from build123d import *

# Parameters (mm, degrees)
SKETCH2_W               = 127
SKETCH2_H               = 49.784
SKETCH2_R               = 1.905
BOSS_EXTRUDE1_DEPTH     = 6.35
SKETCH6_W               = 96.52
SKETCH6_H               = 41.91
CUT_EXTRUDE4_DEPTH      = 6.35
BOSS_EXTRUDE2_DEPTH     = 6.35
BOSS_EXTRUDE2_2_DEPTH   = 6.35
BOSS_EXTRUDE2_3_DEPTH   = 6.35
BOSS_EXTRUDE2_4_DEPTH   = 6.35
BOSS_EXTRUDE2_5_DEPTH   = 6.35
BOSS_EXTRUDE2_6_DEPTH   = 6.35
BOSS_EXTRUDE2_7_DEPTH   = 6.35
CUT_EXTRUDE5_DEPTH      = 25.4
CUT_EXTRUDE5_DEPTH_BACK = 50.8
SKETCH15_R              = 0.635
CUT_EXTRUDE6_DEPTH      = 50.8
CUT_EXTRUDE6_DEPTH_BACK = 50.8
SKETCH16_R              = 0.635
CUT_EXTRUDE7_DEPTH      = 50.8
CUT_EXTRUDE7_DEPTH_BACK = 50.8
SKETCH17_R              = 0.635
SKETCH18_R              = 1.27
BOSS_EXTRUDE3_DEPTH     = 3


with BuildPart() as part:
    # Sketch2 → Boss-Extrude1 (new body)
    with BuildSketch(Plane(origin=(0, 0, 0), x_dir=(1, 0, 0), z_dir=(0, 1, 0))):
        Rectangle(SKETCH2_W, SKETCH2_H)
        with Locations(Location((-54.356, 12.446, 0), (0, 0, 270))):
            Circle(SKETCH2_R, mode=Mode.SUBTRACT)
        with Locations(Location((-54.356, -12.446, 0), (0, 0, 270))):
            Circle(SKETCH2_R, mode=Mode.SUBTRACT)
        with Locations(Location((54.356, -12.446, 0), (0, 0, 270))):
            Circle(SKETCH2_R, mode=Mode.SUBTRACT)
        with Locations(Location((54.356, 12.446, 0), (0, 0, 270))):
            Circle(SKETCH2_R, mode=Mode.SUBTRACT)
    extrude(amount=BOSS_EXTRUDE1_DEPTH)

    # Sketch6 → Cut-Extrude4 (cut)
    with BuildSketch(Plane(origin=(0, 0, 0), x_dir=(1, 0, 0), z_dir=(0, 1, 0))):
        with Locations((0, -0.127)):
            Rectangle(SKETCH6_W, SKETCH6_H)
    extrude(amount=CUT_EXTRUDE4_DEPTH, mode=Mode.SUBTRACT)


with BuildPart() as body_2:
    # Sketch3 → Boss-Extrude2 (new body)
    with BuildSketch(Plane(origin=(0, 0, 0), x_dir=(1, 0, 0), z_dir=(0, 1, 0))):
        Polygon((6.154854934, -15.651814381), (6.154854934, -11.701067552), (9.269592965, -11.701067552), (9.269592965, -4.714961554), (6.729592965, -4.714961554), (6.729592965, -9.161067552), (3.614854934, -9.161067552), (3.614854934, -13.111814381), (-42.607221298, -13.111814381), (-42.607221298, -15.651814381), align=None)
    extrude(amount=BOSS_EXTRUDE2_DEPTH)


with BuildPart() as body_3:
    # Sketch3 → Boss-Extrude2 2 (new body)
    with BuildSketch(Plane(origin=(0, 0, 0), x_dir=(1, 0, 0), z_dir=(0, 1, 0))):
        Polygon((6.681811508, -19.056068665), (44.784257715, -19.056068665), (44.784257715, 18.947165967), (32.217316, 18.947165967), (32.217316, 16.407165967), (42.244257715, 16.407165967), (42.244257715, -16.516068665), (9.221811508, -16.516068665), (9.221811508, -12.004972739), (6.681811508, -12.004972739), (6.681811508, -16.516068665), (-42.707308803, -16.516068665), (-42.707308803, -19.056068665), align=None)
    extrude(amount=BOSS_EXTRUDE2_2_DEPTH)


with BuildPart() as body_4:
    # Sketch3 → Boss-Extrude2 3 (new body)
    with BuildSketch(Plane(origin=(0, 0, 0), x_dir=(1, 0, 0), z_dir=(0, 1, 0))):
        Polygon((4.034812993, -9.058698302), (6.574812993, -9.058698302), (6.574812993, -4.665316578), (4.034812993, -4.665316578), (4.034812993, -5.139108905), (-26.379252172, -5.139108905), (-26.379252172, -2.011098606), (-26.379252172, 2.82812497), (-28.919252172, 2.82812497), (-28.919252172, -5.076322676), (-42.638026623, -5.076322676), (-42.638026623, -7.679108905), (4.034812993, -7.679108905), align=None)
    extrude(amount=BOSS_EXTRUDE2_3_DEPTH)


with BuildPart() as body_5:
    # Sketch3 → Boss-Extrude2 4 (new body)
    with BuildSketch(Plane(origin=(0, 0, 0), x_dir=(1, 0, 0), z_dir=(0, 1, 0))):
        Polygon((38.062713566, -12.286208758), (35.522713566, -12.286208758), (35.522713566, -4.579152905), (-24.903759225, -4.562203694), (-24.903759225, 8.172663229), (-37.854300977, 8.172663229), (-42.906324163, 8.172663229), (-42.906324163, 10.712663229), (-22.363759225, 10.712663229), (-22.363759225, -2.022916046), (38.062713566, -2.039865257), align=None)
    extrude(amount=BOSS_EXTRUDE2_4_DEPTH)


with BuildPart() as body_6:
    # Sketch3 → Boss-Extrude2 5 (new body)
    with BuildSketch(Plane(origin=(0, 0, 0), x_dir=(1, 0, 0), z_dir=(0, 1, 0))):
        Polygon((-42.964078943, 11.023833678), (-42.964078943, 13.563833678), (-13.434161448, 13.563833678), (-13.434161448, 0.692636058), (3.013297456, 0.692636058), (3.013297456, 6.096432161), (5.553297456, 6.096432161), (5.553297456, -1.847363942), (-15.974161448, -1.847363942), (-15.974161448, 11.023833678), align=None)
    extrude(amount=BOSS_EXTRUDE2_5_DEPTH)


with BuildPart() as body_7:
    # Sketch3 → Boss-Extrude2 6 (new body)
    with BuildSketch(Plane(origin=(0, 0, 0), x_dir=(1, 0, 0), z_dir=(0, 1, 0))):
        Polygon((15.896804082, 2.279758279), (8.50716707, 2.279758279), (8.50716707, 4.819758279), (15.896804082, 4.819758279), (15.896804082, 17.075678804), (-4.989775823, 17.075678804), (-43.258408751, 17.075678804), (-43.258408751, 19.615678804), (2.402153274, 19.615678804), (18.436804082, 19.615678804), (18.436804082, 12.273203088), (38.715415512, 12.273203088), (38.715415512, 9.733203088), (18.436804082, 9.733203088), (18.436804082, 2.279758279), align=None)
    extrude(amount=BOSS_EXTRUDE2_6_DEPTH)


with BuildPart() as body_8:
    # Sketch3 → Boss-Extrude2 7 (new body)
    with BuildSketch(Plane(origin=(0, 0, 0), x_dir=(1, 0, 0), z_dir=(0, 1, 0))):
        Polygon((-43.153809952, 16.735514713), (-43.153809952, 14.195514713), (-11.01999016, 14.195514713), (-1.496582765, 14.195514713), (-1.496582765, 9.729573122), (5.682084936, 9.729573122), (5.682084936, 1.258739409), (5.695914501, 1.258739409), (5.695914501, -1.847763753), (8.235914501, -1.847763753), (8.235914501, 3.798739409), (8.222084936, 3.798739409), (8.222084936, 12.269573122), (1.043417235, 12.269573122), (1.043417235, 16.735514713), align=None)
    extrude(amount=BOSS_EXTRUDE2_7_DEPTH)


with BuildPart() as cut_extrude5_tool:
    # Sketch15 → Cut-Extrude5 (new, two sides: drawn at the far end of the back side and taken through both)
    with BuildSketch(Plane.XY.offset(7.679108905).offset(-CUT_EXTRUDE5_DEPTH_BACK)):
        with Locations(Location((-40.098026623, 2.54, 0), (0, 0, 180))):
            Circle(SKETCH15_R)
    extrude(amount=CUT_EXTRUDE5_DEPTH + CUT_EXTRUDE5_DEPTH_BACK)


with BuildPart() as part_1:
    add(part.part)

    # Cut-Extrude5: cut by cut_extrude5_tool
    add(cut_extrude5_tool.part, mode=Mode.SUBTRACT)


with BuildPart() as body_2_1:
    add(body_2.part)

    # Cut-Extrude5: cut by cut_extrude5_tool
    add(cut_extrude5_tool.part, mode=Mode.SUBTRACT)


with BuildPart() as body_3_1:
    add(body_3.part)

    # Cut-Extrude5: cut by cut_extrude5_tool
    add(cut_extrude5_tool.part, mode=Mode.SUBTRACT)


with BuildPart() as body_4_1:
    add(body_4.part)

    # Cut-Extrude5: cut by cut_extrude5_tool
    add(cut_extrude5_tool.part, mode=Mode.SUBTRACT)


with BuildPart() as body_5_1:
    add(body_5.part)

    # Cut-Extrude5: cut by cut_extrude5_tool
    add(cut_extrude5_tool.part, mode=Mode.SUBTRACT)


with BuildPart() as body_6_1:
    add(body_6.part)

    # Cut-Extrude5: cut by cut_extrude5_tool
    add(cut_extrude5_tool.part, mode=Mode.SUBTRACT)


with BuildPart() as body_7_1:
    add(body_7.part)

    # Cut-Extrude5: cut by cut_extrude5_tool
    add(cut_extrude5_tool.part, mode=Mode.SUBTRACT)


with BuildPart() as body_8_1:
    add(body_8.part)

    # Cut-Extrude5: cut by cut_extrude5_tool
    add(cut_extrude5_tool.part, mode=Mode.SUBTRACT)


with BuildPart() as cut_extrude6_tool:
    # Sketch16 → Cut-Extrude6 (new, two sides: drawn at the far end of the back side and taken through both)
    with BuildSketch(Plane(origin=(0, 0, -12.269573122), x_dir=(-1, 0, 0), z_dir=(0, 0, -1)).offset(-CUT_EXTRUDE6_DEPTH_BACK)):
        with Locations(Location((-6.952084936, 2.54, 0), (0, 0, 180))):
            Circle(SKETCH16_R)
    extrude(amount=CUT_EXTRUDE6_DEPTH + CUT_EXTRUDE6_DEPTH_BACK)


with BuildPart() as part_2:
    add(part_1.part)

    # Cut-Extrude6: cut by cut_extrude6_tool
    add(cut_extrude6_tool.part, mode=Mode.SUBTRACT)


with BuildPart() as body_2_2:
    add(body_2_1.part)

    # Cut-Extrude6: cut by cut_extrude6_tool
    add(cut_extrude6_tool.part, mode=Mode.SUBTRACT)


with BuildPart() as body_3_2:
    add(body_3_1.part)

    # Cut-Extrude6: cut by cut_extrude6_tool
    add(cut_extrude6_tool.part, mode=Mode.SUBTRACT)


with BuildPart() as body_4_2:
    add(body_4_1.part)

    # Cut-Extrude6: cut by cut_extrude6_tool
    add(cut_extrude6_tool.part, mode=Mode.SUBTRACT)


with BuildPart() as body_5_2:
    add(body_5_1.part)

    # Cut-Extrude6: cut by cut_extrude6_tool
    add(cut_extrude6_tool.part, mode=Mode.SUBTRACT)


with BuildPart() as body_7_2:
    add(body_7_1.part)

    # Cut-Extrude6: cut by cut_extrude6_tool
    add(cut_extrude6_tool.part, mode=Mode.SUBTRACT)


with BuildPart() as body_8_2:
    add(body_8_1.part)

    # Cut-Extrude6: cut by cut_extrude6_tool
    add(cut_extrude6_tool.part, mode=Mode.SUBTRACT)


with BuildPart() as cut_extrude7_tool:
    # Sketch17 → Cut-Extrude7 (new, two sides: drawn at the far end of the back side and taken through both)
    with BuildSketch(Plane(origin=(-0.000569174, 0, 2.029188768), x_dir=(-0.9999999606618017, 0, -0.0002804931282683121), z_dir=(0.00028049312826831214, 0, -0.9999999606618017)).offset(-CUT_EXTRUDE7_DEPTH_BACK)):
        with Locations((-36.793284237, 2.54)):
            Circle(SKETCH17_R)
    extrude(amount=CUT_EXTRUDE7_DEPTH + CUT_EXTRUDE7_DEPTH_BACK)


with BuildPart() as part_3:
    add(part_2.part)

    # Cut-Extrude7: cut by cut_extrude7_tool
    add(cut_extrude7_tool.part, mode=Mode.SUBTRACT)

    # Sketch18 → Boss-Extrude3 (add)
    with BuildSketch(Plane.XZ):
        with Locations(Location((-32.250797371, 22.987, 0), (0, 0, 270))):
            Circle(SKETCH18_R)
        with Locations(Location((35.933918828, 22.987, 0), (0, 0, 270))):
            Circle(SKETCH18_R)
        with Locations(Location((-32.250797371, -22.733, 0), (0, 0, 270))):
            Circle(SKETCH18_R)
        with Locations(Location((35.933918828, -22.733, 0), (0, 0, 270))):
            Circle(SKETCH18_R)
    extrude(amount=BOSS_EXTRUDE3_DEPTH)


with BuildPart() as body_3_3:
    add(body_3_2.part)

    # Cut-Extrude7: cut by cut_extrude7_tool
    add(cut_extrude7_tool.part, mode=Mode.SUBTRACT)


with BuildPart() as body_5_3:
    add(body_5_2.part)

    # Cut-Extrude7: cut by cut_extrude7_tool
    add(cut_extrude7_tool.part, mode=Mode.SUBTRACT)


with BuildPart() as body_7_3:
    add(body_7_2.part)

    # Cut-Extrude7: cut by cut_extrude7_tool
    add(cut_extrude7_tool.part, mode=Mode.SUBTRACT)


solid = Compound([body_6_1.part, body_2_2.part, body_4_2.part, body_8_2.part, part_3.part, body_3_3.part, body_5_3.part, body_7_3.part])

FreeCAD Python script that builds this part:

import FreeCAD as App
import Part
import Sketcher
Q = App.Units.Quantity

doc = App.newDocument("Part")
params = doc.addObject("Spreadsheet::Sheet", "Params")
for row, (alias, value) in enumerate([
    ("sketch1_diameter", "0.15 in"),
    ("sketch1_width", "5 in"),
    ("sketch1_height", "1.96 in"),
    ("pad1_length", "0.25 in"),
    ("sketch2_width", "3.8 in"),
    ("sketch2_height", "1.65 in"),
    ("pocket1_length", "0.25 in"),
    ("sketch3_width", "0.1 in"),
    ("pad2_length", "0.25 in"),
    ("sketch4_width", "0.1 in"),
    ("pad3_length", "0.25 in"),
    ("sketch5_width", "0.1 in"),
    ("pad4_length", "0.25 in"),
    ("sketch6_width", "0.1 in"),
    ("pad5_length", "0.25 in"),
    ("sketch7_width", "0.1 in"),
    ("pad6_length", "0.25 in"),
    ("sketch8_height", "0.1 in"),
    ("pad7_length", "0.25 in"),
    ("sketch9_width", "0.1 in"),
    ("pad8_length", "0.25 in"),
    ("sketch10_diameter", "0.05 in"),
    ("pad9_length", "1 in"),
    ("pad9_length2", "2 in"),
    ("sketch11_diameter", "0.05 in"),
    ("pad10_length", "2 in"),
    ("pad10_length2", "2 in"),
    ("sketch12_diameter", "0.05 in"),
    ("pad11_length", "2 in"),
    ("pad11_length2", "2 in"),
    ("sketch13_diameter", "0.1 in"),
    ("pad12_length", "3 mm"),
], start=1):
    params.set(f"A{row}", alias)
    params.set(f"B{row}", "=" + value)
    params.setAlias(f"B{row}", alias)

body = doc.addObject("PartDesign::Body", "Body")

sketch1 = body.newObject("Sketcher::SketchObject", "Sketch")
sketch1.AttachmentSupport = (doc.getObject("XZ_Plane"), [""])
sketch1.MapMode = "FlatFace"
sketch1.addGeometry([
    Part.LineSegment(App.Vector(-63.5, -24.9, 0), App.Vector(-63.5, 24.9, 0)),
    Part.LineSegment(App.Vector(-63.5, 24.9, 0), App.Vector(63.5, 24.9, 0)),
    Part.LineSegment(App.Vector(63.5, 24.9, 0), App.Vector(63.5, -24.9, 0)),
    Part.LineSegment(App.Vector(63.5, -24.9, 0), App.Vector(-63.5, -24.9, 0)),
    Part.Circle(App.Vector(-54.4, 12.4, 0), App.Vector(0, 0, 1), 1.9),
    Part.Circle(App.Vector(54.4, 12.4, 0), App.Vector(0, 0, 1), 1.9),
    Part.Circle(App.Vector(-54.4, -12.4, 0), App.Vector(0, 0, 1), 1.9),
    Part.Circle(App.Vector(54.4, -12.4, 0), App.Vector(0, 0, 1), 1.9),
], False)
sketch1.addConstraint([
    Sketcher.Constraint("Coincident", 0, 2, 1, 1),
    Sketcher.Constraint("Coincident", 1, 2, 2, 1),
    Sketcher.Constraint("Coincident", 2, 2, 3, 1),
    Sketcher.Constraint("Coincident", 3, 2, 0, 1),
    Sketcher.Constraint("Vertical", 0),
    Sketcher.Constraint("Horizontal", 1),
    Sketcher.Constraint("Vertical", 2),
    Sketcher.Constraint("Horizontal", 3),
    Sketcher.Constraint("Equal", 4, 5),
    Sketcher.Constraint("Equal", 5, 6),
    Sketcher.Constraint("Equal", 6, 7),
    Sketcher.Constraint("Symmetric", 5, 3, 6, 3, -1, 1),
    Sketcher.Constraint("Symmetric", 4, 3, 7, 3, -1, 1),
    Sketcher.Constraint("Symmetric", 0, 2, 2, 2, -1, 1),
    Sketcher.Constraint("Symmetric", 4, 3, 5, 3, -2),
    Sketcher.Constraint("Diameter", 4, Q("0.15 in")),
    Sketcher.Constraint("DistanceX", 1, 1, 1, 2, Q("5 in")),
    Sketcher.Constraint("DistanceY", 0, 1, 0, 2, Q("1.96 in")),
    Sketcher.Constraint("DistanceX", 4, 3, -1, 1, Q("2.14 in")),
    Sketcher.Constraint("DistanceY", -1, 1, 4, 3, Q("0.49 in")),
])
sketch1.setExpression("Constraints[15]", "Params.sketch1_diameter")
sketch1.setExpression("Constraints[16]", "Params.sketch1_width")
sketch1.setExpression("Constraints[17]", "Params.sketch1_height")
pad1 = body.newObject("PartDesign::Pad", "Pad")
pad1.Profile = sketch1
pad1.setExpression("Length", "Params.pad1_length")
pad1.Reversed = True

sketch2 = body.newObject("Sketcher::SketchObject", "Sketch001")
sketch2.AttachmentSupport = (doc.getObject("XZ_Plane"), [""])
sketch2.MapMode = "FlatFace"
sketch2.addGeometry([
    Part.LineSegment(App.Vector(-48, -21, 0), App.Vector(-48, 21, 0)),
    Part.LineSegment(App.Vector(-48, 21, 0), App.Vector(48, 21, 0)),
    Part.LineSegment(App.Vector(48, 21, 0), App.Vector(48, -21, 0)),
    Part.LineSegment(App.Vector(48, -21, 0), App.Vector(-48, -21, 0)),
], False)
sketch2.addConstraint([
    Sketcher.Constraint("Coincident", 0, 2, 1, 1),
    Sketcher.Constraint("Coincident", 1, 2, 2, 1),
    Sketcher.Constraint("Coincident", 2, 2, 3, 1),
    Sketcher.Constraint("Coincident", 3, 2, 0, 1),
    Sketcher.Constraint("Vertical", 0),
    Sketcher.Constraint("Horizontal", 1),
    Sketcher.Constraint("Vertical", 2),
    Sketcher.Constraint("Horizontal", 3),
    Sketcher.Constraint("DistanceX", 1, 1, 1, 2, Q("3.8 in")),
    Sketcher.Constraint("DistanceY", 0, 1, 0, 2, Q("1.65 in")),
    Sketcher.Constraint("DistanceX", 0, 2, -1, 1, Q("1.9 in")),
    Sketcher.Constraint("DistanceY", -1, 1, 0, 2, Q("0.83 in")),
])
sketch2.setExpression("Constraints[8]", "Params.sketch2_width")
sketch2.setExpression("Constraints[9]", "Params.sketch2_height")
pocket1 = body.newObject("PartDesign::Pocket", "Pocket")
pocket1.Profile = sketch2
pocket1.setExpression("Length", "Params.pocket1_length")
body2 = doc.addObject("PartDesign::Body", "Body001")

sketch3 = body2.newObject("Sketcher::SketchObject", "Sketch002")
sketch3.AttachmentSupport = (doc.getObject("XZ_Plane001"), [""])
sketch3.MapMode = "FlatFace"
sketch3.addGeometry([
    Part.LineSegment(App.Vector(6.2, 15.7, 0), App.Vector(6.2, 11.7, 0)),
    Part.LineSegment(App.Vector(6.2, 11.7, 0), App.Vector(9.3, 11.7, 0)),
    Part.LineSegment(App.Vector(9.3, 11.7, 0), App.Vector(9.3, 4.7, 0)),
    Part.LineSegment(App.Vector(9.3, 4.7, 0), App.Vector(6.7, 4.7, 0)),
    Part.LineSegment(App.Vector(6.7, 4.7, 0), App.Vector(6.7, 9.2, 0)),
    Part.LineSegment(App.Vector(6.7, 9.2, 0), App.Vector(3.6, 9.2, 0)),
    Part.LineSegment(App.Vector(3.6, 9.2, 0), App.Vector(3.6, 13.1, 0)),
    Part.LineSegment(App.Vector(3.6, 13.1, 0), App.Vector(-42.6, 13.1, 0)),
    Part.LineSegment(App.Vector(-42.6, 13.1, 0), App.Vector(-42.6, 15.7, 0)),
    Part.LineSegment(App.Vector(-42.6, 15.7, 0), App.Vector(6.2, 15.7, 0)),
], False)
sketch3.addConstraint([
    Sketcher.Constraint("Coincident", 0, 2, 1, 1),
    Sketcher.Constraint("Coincident", 1, 2, 2, 1),
    Sketcher.Constraint("Coincident", 2, 2, 3, 1),
    Sketcher.Constraint("Coincident", 3, 2, 4, 1),
    Sketcher.Constraint("Coincident", 4, 2, 5, 1),
    Sketcher.Constraint("Coincident", 5, 2, 6, 1),
    Sketcher.Constraint("Coincident", 6, 2, 7, 1),
    Sketcher.Constraint("Coincident", 7, 2, 8, 1),
    Sketcher.Constraint("Coincident", 8, 2, 9, 1),
    Sketcher.Constraint("Coincident", 9, 2, 0, 1),
    Sketcher.Constraint("Vertical", 0),
    Sketcher.Constraint("Horizontal", 1),
    Sketcher.Constraint("Vertical", 2),
    Sketcher.Constraint("Horizontal", 3),
    Sketcher.Constraint("Vertical", 4),
    Sketcher.Constraint("Horizontal", 5),
    Sketcher.Constraint("Vertical", 6),
    Sketcher.Constraint("Horizontal", 7),
    Sketcher.Constraint("Vertical", 8),
    Sketcher.Constraint("Horizontal", 9),
    Sketcher.Constraint("Equal", 1, 5),
    Sketcher.Constraint("Equal", 0, 6),
    Sketcher.Constraint("Equal", 3, 8),
    Sketcher.Constraint("DistanceX", 3, 2, 3, 1, Q("0.1 in")),
    Sketcher.Constraint("DistanceX", 1, 1, 1, 2, 3.114738),
    Sketcher.Constraint("DistanceX", 7, 2, 7, 1, 46.222076),
    Sketcher.Constraint("DistanceY", 0, 2, 0, 1, 3.950747),
    Sketcher.Constraint("DistanceY", 2, 2, 2, 1, 6.986106),
    Sketcher.Constraint("DistanceY", -1, 1, 2, 2, 4.714962),
    Sketcher.Constraint("DistanceX", 7, 2, -1, 1, 42.607221),
])
sketch3.setExpression("Constraints[23]", "Params.sketch3_width")
pad2 = body2.newObject("PartDesign::Pad", "Pad001")
pad2.Profile = sketch3
pad2.setExpression("Length", "Params.pad2_length")
pad2.Reversed = True
body3 = doc.addObject("PartDesign::Body", "Body002")

sketch4 = body3.newObject("Sketcher::SketchObject", "Sketch003")
sketch4.AttachmentSupport = (doc.getObject("XZ_Plane002"), [""])
sketch4.MapMode = "FlatFace"
sketch4.addGeometry([
    Part.LineSegment(App.Vector(44.8, 19.1, 0), App.Vector(44.8, -18.9, 0)),
    Part.LineSegment(App.Vector(44.8, -18.9, 0), App.Vector(32.2, -18.9, 0)),
    Part.LineSegment(App.Vector(32.2, -18.9, 0), App.Vector(32.2, -16.4, 0)),
    Part.LineSegment(App.Vector(32.2, -16.4, 0), App.Vector(42.2, -16.4, 0)),
    Part.LineSegment(App.Vector(42.2, -16.4, 0), App.Vector(42.2, 16.5, 0)),
    Part.LineSegment(App.Vector(42.2, 16.5, 0), App.Vector(9.2, 16.5, 0)),
    Part.LineSegment(App.Vector(9.2, 16.5, 0), App.Vector(9.2, 12, 0)),
    Part.LineSegment(App.Vector(9.2, 12, 0), App.Vector(6.7, 12, 0)),
    Part.LineSegment(App.Vector(6.7, 12, 0), App.Vector(6.7, 16.5, 0)),
    Part.LineSegment(App.Vector(6.7, 16.5, 0), App.Vector(-42.7, 16.5, 0)),
    Part.LineSegment(App.Vector(-42.7, 16.5, 0), App.Vector(-42.7, 19.1, 0)),
    Part.LineSegment(App.Vector(-42.7, 19.1, 0), App.Vector(44.8, 19.1, 0)),
], False)
sketch4.addConstraint([
    Sketcher.Constraint("Coincident", 0, 2, 1, 1),
    Sketcher.Constraint("Coincident", 1, 2, 2, 1),
    Sketcher.Constraint("Coincident", 2, 2, 3, 1),
    Sketcher.Constraint("Coincident", 3, 2, 4, 1),
    Sketcher.Constraint("Coincident", 4, 2, 5, 1),
    Sketcher.Constraint("Coincident", 5, 2, 6, 1),
    Sketcher.Constraint("Coincident", 6, 2, 7, 1),
    Sketcher.Constraint("Coincident", 7, 2, 8, 1),
    Sketcher.Constraint("Coincident", 8, 2, 9, 1),
    Sketcher.Constraint("Coincident", 9, 2, 10, 1),
    Sketcher.Constraint("Coincident", 10, 2, 11, 1),
    Sketcher.Constraint("Coincident", 11, 2, 0, 1),
    Sketcher.Constraint("Vertical", 0),
    Sketcher.Constraint("Horizontal", 1),
    Sketcher.Constraint("Vertical", 2),
    Sketcher.Constraint("Horizontal", 3),
    Sketcher.Constraint("Vertical", 4),
    Sketcher.Constraint("Horizontal", 5),
    Sketcher.Constraint("Vertical", 6),
    Sketcher.Constraint("Horizontal", 7),
    Sketcher.Constraint("Vertical", 8),
    Sketcher.Constraint("Horizontal", 9),
    Sketcher.Constraint("Vertical", 10),
    Sketcher.Constraint("Horizontal", 11),
    Sketcher.Constraint("Horizontal", 5, 2, 8, 2),
    Sketcher.Constraint("Equal", 7, 2),
    Sketcher.Constraint("Equal", 2, 10),
    Sketcher.Constraint("DistanceX", 7, 2, 7, 1, Q("0.1 in")),
    Sketcher.Constraint("DistanceX", 3, 2, 0, 2, Q("0.1 in")),
    Sketcher.Constraint("DistanceX", 1, 2, 1, 1, 12.566942),
    Sketcher.Constraint("DistanceX", 9, 2, 9, 1, 49.38912),
    Sketcher.Constraint("DistanceX", 5, 2, 5, 1, 33.022446),
    Sketcher.Constraint("DistanceY", 0, 2, 0, 1, 38.003235),
    Sketcher.Constraint("DistanceY", 6, 2, 6, 1, 4.511096),
    Sketcher.Constraint("DistanceY", -1, 1, 4, 2, 16.516069),
    Sketcher.Constraint("DistanceX", -1, 1, 5, 2, 9.221812),
])
sketch4.setExpression("Constraints[27]", "Params.sketch4_width")
pad3 = body3.newObject("PartDesign::Pad", "Pad002")
pad3.Profile = sketch4
pad3.setExpression("Length", "Params.pad3_length")
pad3.Reversed = True
body4 = doc.addObject("PartDesign::Body", "Body003")

sketch5 = body4.newObject("Sketcher::SketchObject", "Sketch004")
sketch5.AttachmentSupport = (doc.getObject("XZ_Plane003"), [""])
sketch5.MapMode = "FlatFace"
sketch5.addGeometry([
    Part.LineSegment(App.Vector(4.03, 9.06, 0), App.Vector(6.57, 9.06, 0)),
    Part.LineSegment(App.Vector(6.57, 9.06, 0), App.Vector(6.57, 4.67, 0)),
    Part.LineSegment(App.Vector(6.57, 4.67, 0), App.Vector(4.03, 4.67, 0)),
    Part.LineSegment(App.Vector(4.03, 4.67, 0), App.Vector(4.03, 5.14, 0)),
    Part.LineSegment(App.Vector(4.03, 5.14, 0), App.Vector(-26.38, 5.14, 0)),
    Part.LineSegment(App.Vector(-26.38, 5.14, 0), App.Vector(-26.38, -2.83, 0)),
    Part.LineSegment(App.Vector(-26.38, -2.83, 0), App.Vector(-28.92, -2.83, 0)),
    Part.LineSegment(App.Vector(-28.92, -2.83, 0), App.Vector(-28.92, 5.08, 0)),
    Part.LineSegment(App.Vector(-28.92, 5.08, 0), App.Vector(-42.64, 5.08, 0)),
    Part.LineSegment(App.Vector(-42.64, 5.08, 0), App.Vector(-42.64, 7.68, 0)),
    Part.LineSegment(App.Vector(-42.64, 7.68, 0), App.Vector(4.03, 7.68, 0)),
    Part.LineSegment(App.Vector(4.03, 7.68, 0), App.Vector(4.03, 9.06, 0)),
], False)
sketch5.addConstraint([
    Sketcher.Constraint("Coincident", 0, 2, 1, 1),
    Sketcher.Constraint("Coincident", 1, 2, 2, 1),
    Sketcher.Constraint("Coincident", 2, 2, 3, 1),
    Sketcher.Constraint("Coincident", 3, 2, 4, 1),
    Sketcher.Constraint("Coincident", 4, 2, 5, 1),
    Sketcher.Constraint("Coincident", 5, 2, 6, 1),
    Sketcher.Constraint("Coincident", 6, 2, 7, 1),
    Sketcher.Constraint("Coincident", 7, 2, 8, 1),
    Sketcher.Constraint("Coincident", 8, 2, 9, 1),
    Sketcher.Constraint("Coincident", 9, 2, 10, 1),
    Sketcher.Constraint("Coincident", 10, 2, 11, 1),
    Sketcher.Constraint("Coincident", 11, 2, 0, 1),
    Sketcher.Constraint("Horizontal", 0),
    Sketcher.Constraint("Vertical", 1),
    Sketcher.Constraint("Horizontal", 2),
    Sketcher.Constraint("Vertical", 3),
    Sketcher.Constraint("Horizontal", 4),
    Sketcher.Constraint("Vertical", 5),
    Sketcher.Constraint("Horizontal", 6),
    Sketcher.Constraint("Vertical", 7),
    Sketcher.Constraint("Horizontal", 8),
    Sketcher.Constraint("Vertical", 9),
    Sketcher.Constraint("Horizontal", 10),
    Sketcher.Constraint("Vertical", 11),
    Sketcher.Constraint("Vertical", 3, 2, 10, 2),
    Sketcher.Constraint("Equal", 2, 6),
    Sketcher.Constraint("DistanceX", 0, 1, 0, 2, Q("0.1 in")),
    Sketcher.Constraint("DistanceY", 4, 2, 9, 2, Q("0.1 in")),
    Sketcher.Constraint("DistanceX", 10, 1, 10, 2, 46.67284),
    Sketcher.Constraint("DistanceY", 1, 2, 1, 1, 4.393382),
    Sketcher.Constraint("DistanceY", 11, 1, 11, 2, 1.379589),
    Sketcher.Constraint("DistanceY", -1, 1, 0, 2, 9.058698),
    Sketcher.Constraint("DistanceX", 4, 2, 4, 1, 30.414065),
    Sketcher.Constraint("DistanceY", 5, 2, 5, 1, 7.967234),
    Sketcher.Constraint("DistanceY", 7, 1, 7, 2, 7.904448),
    Sketcher.Constraint("DistanceX", -1, 1, 0, 2, 6.574813),
])
sketch5.setExpression("Constraints[26]", "Params.sketch5_width")
pad4 = body4.newObject("PartDesign::Pad", "Pad003")
pad4.Profile = sketch5
pad4.setExpression("Length", "Params.pad4_length")
pad4.Reversed = True
body5 = doc.addObject("PartDesign::Body", "Body004")

sketch6 = body5.newObject("Sketcher::SketchObject", "Sketch005")
sketch6.AttachmentSupport = (doc.getObject("XZ_Plane004"), [""])
sketch6.MapMode = "FlatFace"
sketch6.addGeometry([
    Part.LineSegment(App.Vector(35.5, 12.3, 0), App.Vector(38.1, 12.3, 0)),
    Part.LineSegment(App.Vector(38.1, 12.3, 0), App.Vector(38.1, 2, 0)),
    Part.LineSegment(App.Vector(38.1, 2, 0), App.Vector(-22.4, 2, 0)),
    Part.LineSegment(App.Vector(-22.4, 2, 0), App.Vector(-22.4, -10.7, 0)),
    Part.LineSegment(App.Vector(-22.4, -10.7, 0), App.Vector(-42.9, -10.7, 0)),
    Part.LineSegment(App.Vector(-42.9, -10.7, 0), App.Vector(-42.9, -8.2, 0)),
    Part.LineSegment(App.Vector(-42.9, -8.2, 0), App.Vector(-24.9, -8.2, 0)),
    Part.LineSegment(App.Vector(-24.9, -8.2, 0), App.Vector(-24.9, 4.6, 0)),
    Part.LineSegment(App.Vector(-24.9, 4.6, 0), App.Vector(35.5, 4.6, 0)),
    Part.LineSegment(App.Vector(35.5, 4.6, 0), App.Vector(35.5, 12.3, 0)),
], False)
sketch6.addConstraint([
    Sketcher.Constraint("Coincident", 0, 2, 1, 1),
    Sketcher.Constraint("Coincident", 1, 2, 2, 1),
    Sketcher.Constraint("Coincident", 2, 2, 3, 1),
    Sketcher.Constraint("Coincident", 3, 2, 4, 1),
    Sketcher.Constraint("Coincident", 4, 2, 5, 1),
    Sketcher.Constraint("Coincident", 5, 2, 6, 1),
    Sketcher.Constraint("Coincident", 6, 2, 7, 1),
    Sketcher.Constraint("Coincident", 7, 2, 8, 1),
    Sketcher.Constraint("Coincident", 8, 2, 9, 1),
    Sketcher.Constraint("Coincident", 9, 2, 0, 1),
    Sketcher.Constraint("Horizontal", 0),
    Sketcher.Constraint("Vertical", 1),
    Sketcher.Constraint("Vertical", 3),
    Sketcher.Constraint("Horizontal", 4),
    Sketcher.Constraint("Vertical", 5),
    Sketcher.Constraint("Horizontal", 6),
    Sketcher.Constraint("Vertical", 7),
    Sketcher.Constraint("Vertical", 9),
    Sketcher.Constraint("Parallel", 2, 8),
    Sketcher.Constraint("Equal", 0, 5),
    Sketcher.Constraint("Equal", 2, 8),
    Sketcher.Constraint("DistanceX", 0, 1, 0, 2, Q("0.1 in")),
    Sketcher.Constraint("DistanceY", 3, 2, 3, 1, 12.735579),
    Sketcher.Constraint("DistanceX", 4, 2, 4, 1, 20.542565),
    Sketcher.Constraint("DistanceY", 1, 2, 1, 1, 10.246344),
    Sketcher.Constraint("DistanceY", 7, 1, 7, 2, 12.734867),
    Sketcher.Constraint("DistanceY", -1, 1, 0, 2, 12.286209),
    Sketcher.Constraint("DistanceX", 2, 2, -1, 1, 22.363759),
    Sketcher.Constraint("DistanceY", 2, 2, 1, 2, 0.016949),
    Sketcher.Constraint("Distance", 2, 60.426475),
])
sketch6.setExpression("Constraints[21]", "Params.sketch6_width")
pad5 = body5.newObject("PartDesign::Pad", "Pad004")
pad5.Profile = sketch6
pad5.setExpression("Length", "Params.pad5_length")
pad5.Reversed = True
body6 = doc.addObject("PartDesign::Body", "Body005")

sketch7 = body6.newObject("Sketcher::SketchObject", "Sketch006")
sketch7.AttachmentSupport = (doc.getObject("XZ_Plane005"), [""])
sketch7.MapMode = "FlatFace"
sketch7.addGeometry([
    Part.LineSegment(App.Vector(-43, -13.6, 0), App.Vector(-43, -11, 0)),
    Part.LineSegment(App.Vector(-43, -11, 0), App.Vector(-16, -11, 0)),
    Part.LineSegment(App.Vector(-16, -11, 0), App.Vector(-16, 1.8, 0)),
    Part.LineSegment(App.Vector(-16, 1.8, 0), App.Vector(5.6, 1.8, 0)),
    Part.LineSegment(App.Vector(5.6, 1.8, 0), App.Vector(5.6, -6.1, 0)),
    Part.LineSegment(App.Vector(5.6, -6.1, 0), App.Vector(3, -6.1, 0)),
    Part.LineSegment(App.Vector(3, -6.1, 0), App.Vector(3, -0.7, 0)),
    Part.LineSegment(App.Vector(3, -0.7, 0), App.Vector(-13.4, -0.7, 0)),
    Part.LineSegment(App.Vector(-13.4, -0.7, 0), App.Vector(-13.4, -13.6, 0)),
    Part.LineSegment(App.Vector(-13.4, -13.6, 0), App.Vector(-43, -13.6, 0)),
], False)
sketch7.addConstraint([
    Sketcher.Constraint("Coincident", 0, 2, 1, 1),
    Sketcher.Constraint("Coincident", 1, 2, 2, 1),
    Sketcher.Constraint("Coincident", 2, 2, 3, 1),
    Sketcher.Constraint("Coincident", 3, 2, 4, 1),
    Sketcher.Constraint("Coincident", 4, 2, 5, 1),
    Sketcher.Constraint("Coincident", 5, 2, 6, 1),
    Sketcher.Constraint("Coincident", 6, 2, 7, 1),
    Sketcher.Constraint("Coincident", 7, 2, 8, 1),
    Sketcher.Constraint("Coincident", 8, 2, 9, 1),
    Sketcher.Constraint("Coincident", 9, 2, 0, 1),
    Sketcher.Constraint("Vertical", 0),
    Sketcher.Constraint("Horizontal", 1),
    Sketcher.Constraint("Vertical", 2),
    Sketcher.Constraint("Horizontal", 3),
    Sketcher.Constraint("Vertical", 4),
    Sketcher.Constraint("Horizontal", 5),
    Sketcher.Constraint("Vertical", 6),
    Sketcher.Constraint("Horizontal", 7),
    Sketcher.Constraint("Vertical", 8),
    Sketcher.Constraint("Horizontal", 9),
    Sketcher.Constraint("Equal", 5, 0),
    Sketcher.Constraint("Equal", 2, 8),
    Sketcher.Constraint("DistanceX", 5, 2, 5, 1, Q("0.1 in")),
    Sketcher.Constraint("DistanceX", 2, 2, 7, 2, Q("0.1 in")),
    Sketcher.Constraint("DistanceX", 3, 1, 3, 2, 21.527459),
    Sketcher.Constraint("DistanceY", 1, 2, 4, 2, 4.927402),
    Sketcher.Constraint("DistanceX", 1, 1, 1, 2, 26.989917),
    Sketcher.Constraint("DistanceY", 2, 1, 2, 2, 12.871198),
    Sketcher.Constraint("DistanceX", 0, 2, -1, 1, 42.964079),
    Sketcher.Constraint("DistanceY", 0, 2, -1, 1, 11.023834),
])
sketch7.setExpression("Constraints[22]", "Params.sketch7_width")
pad6 = body6.newObject("PartDesign::Pad", "Pad005")
pad6.Profile = sketch7
pad6.setExpression("Length", "Params.pad6_length")
pad6.Reversed = True
body7 = doc.addObject("PartDesign::Body", "Body006")

sketch8 = body7.newObject("Sketcher::SketchObject", "Sketch007")
sketch8.AttachmentSupport = (doc.getObject("XZ_Plane006"), [""])
sketch8.MapMode = "FlatFace"
sketch8.addGeometry([
    Part.LineSegment(App.Vector(8.5, -2.3, 0), App.Vector(18.4, -2.3, 0)),
    Part.LineSegment(App.Vector(18.4, -2.3, 0), App.Vector(18.4, -9.7, 0)),
    Part.LineSegment(App.Vector(18.4, -9.7, 0), App.Vector(38.7, -9.7, 0)),
    Part.LineSegment(App.Vector(38.7, -9.7, 0), App.Vector(38.7, -12.3, 0)),
    Part.LineSegment(App.Vector(38.7, -12.3, 0), App.Vector(18.4, -12.3, 0)),
    Part.LineSegment(App.Vector(18.4, -12.3, 0), App.Vector(18.4, -19.6, 0)),
    Part.LineSegment(App.Vector(18.4, -19.6, 0), App.Vector(-43.3, -19.6, 0)),
    Part.LineSegment(App.Vector(-43.3, -19.6, 0), App.Vector(-43.3, -17.1, 0)),
    Part.LineSegment(App.Vector(-43.3, -17.1, 0), App.Vector(15.9, -17.1, 0)),
    Part.LineSegment(App.Vector(15.9, -17.1, 0), App.Vector(15.9, -4.8, 0)),
    Part.LineSegment(App.Vector(15.9, -4.8, 0), App.Vector(8.5, -4.8, 0)),
    Part.LineSegment(App.Vector(8.5, -4.8, 0), App.Vector(8.5, -2.3, 0)),
], False)
sketch8.addConstraint([
    Sketcher.Constraint("Coincident", 0, 2, 1, 1),
    Sketcher.Constraint("Coincident", 1, 2, 2, 1),
    Sketcher.Constraint("Coincident", 2, 2, 3, 1),
    Sketcher.Constraint("Coincident", 3, 2, 4, 1),
    Sketcher.Constraint("Coincident", 4, 2, 5, 1),
    Sketcher.Constraint("Coincident", 5, 2, 6, 1),
    Sketcher.Constraint("Coincident", 6, 2, 7, 1),
    Sketcher.Constraint("Coincident", 7, 2, 8, 1),
    Sketcher.Constraint("Coincident", 8, 2, 9, 1),
    Sketcher.Constraint("Coincident", 9, 2, 10, 1),
    Sketcher.Constraint("Coincident", 10, 2, 11, 1),
    Sketcher.Constraint("Coincident", 11, 2, 0, 1),
    Sketcher.Constraint("Horizontal", 0),
    Sketcher.Constraint("Vertical", 1),
    Sketcher.Constraint("Horizontal", 2),
    Sketcher.Constraint("Vertical", 3),
    Sketcher.Constraint("Horizontal", 4),
    Sketcher.Constraint("Vertical", 5),
    Sketcher.Constraint("Horizontal", 6),
    Sketcher.Constraint("Vertical", 7),
    Sketcher.Constraint("Horizontal", 8),
    Sketcher.Constraint("Vertical", 9),
    Sketcher.Constraint("Horizontal", 10),
    Sketcher.Constraint("Vertical", 11),
    Sketcher.Constraint("Vertical", 1, 2, 4, 2),
    Sketcher.Constraint("Equal", 3, 7),
    Sketcher.Constraint("Equal", 7, 11),
    Sketcher.Constraint("DistanceY", 3, 2, 3, 1, Q("0.1 in")),
    Sketcher.Constraint("DistanceX", 8, 2, 5, 2, Q("0.1 in")),
    Sketcher.Constraint("DistanceX", 2, 1, 2, 2, 20.278611),
    Sketcher.Constraint("DistanceY", 9, 1, 9, 2, 12.255921),
    Sketcher.Constraint("DistanceX", 0, 1, 0, 2, 9.929637),
    Sketcher.Constraint("DistanceX", 6, 2, 6, 1, 61.695213),
    Sketcher.Constraint("DistanceY", 1, 2, 1, 1, 7.453445),
    Sketcher.Constraint("DistanceY", 0, 2, -1, 1, 2.279758),
    Sketcher.Constraint("DistanceX", 6, 2, -1, 1, 43.258409),
])
sketch8.setExpression("Constraints[27]", "Params.sketch8_height")
pad7 = body7.newObject("PartDesign::Pad", "Pad006")
pad7.Profile = sketch8
pad7.setExpression("Length", "Params.pad7_length")
pad7.Reversed = True
body8 = doc.addObject("PartDesign::Body", "Body007")

sketch9 = body8.newObject("Sketcher::SketchObject", "Sketch008")
sketch9.AttachmentSupport = (doc.getObject("XZ_Plane007"), [""])
sketch9.MapMode = "FlatFace"
sketch9.addGeometry([
    Part.LineSegment(App.Vector(-43.154, -16.736, 0), App.Vector(-43.154, -14.196, 0)),
    Part.LineSegment(App.Vector(-43.154, -14.196, 0), App.Vector(-1.497, -14.196, 0)),
    Part.LineSegment(App.Vector(-1.497, -14.196, 0), App.Vector(-1.497, -9.73, 0)),
    Part.LineSegment(App.Vector(-1.497, -9.73, 0), App.Vector(5.682, -9.73, 0)),
    Part.LineSegment(App.Vector(5.682, -9.73, 0), App.Vector(5.682, -1.259, 0)),
    Part.LineSegment(App.Vector(5.682, -1.259, 0), App.Vector(5.696, -1.259, 0)),
    Part.LineSegment(App.Vector(5.696, -1.259, 0), App.Vector(5.696, 1.848, 0)),
    Part.LineSegment(App.Vector(5.696, 1.848, 0), App.Vector(8.236, 1.848, 0)),
    Part.LineSegment(App.Vector(8.236, 1.848, 0), App.Vector(8.236, -3.799, 0)),
    Part.LineSegment(App.Vector(8.236, -3.799, 0), App.Vector(8.222, -3.799, 0)),
    Part.LineSegment(App.Vector(8.222, -3.799, 0), App.Vector(8.222, -12.27, 0)),
    Part.LineSegment(App.Vector(8.222, -12.27, 0), App.Vector(1.043, -12.27, 0)),
    Part.LineSegment(App.Vector(1.043, -12.27, 0), App.Vector(1.043, -16.736, 0)),
    Part.LineSegment(App.Vector(1.043, -16.736, 0), App.Vector(-43.154, -16.736, 0)),
], False)
sketch9.addConstraint([
    Sketcher.Constraint("Coincident", 0, 2, 1, 1),
    Sketcher.Constraint("Coincident", 1, 2, 2, 1),
    Sketcher.Constraint("Coincident", 2, 2, 3, 1),
    Sketcher.Constraint("Coincident", 3, 2, 4, 1),
    Sketcher.Constraint("Coincident", 4, 2, 5, 1),
    Sketcher.Constraint("Coincident", 5, 2, 6, 1),
    Sketcher.Constraint("Coincident", 6, 2, 7, 1),
    Sketcher.Constraint("Coincident", 7, 2, 8, 1),
    Sketcher.Constraint("Coincident", 8, 2, 9, 1),
    Sketcher.Constraint("Coincident", 9, 2, 10, 1),
    Sketcher.Constraint("Coincident", 10, 2, 11, 1),
    Sketcher.Constraint("Coincident", 11, 2, 12, 1),
    Sketcher.Constraint("Coincident", 12, 2, 13, 1),
    Sketcher.Constraint("Coincident", 13, 2, 0, 1),
    Sketcher.Constraint("Vertical", 0),
    Sketcher.Constraint("Horizontal", 1),
    Sketcher.Constraint("Vertical", 2),
    Sketcher.Constraint("Horizontal", 3),
    Sketcher.Constraint("Vertical", 4),
    Sketcher.Constraint("Horizontal", 5),
    Sketcher.Constraint("Vertical", 6),
    Sketcher.Constraint("Horizontal", 7),
    Sketcher.Constraint("Vertical", 8),
    Sketcher.Constraint("Horizontal", 9),
    Sketcher.Constraint("Vertical", 10),
    Sketcher.Constraint("Horizontal", 11),
    Sketcher.Constraint("Vertical", 12),
    Sketcher.Constraint("Horizontal", 13),
    Sketcher.Constraint("Equal", 5, 9),
    Sketcher.Constraint("Equal", 3, 11),
    Sketcher.Constraint("Equal", 7, 0),
    Sketcher.Constraint("Equal", 4, 10),
    Sketcher.Constraint("Equal", 2, 12),
    Sketcher.Constraint("DistanceX", 7, 1, 7, 2, Q("0.1 in")),
    Sketcher.Constraint("DistanceX", 5, 1, 5, 2, 0.01383),
    Sketcher.Constraint("DistanceY", 2, 1, 2, 2, 4.465942),
    Sketcher.Constraint("DistanceX", 1, 1, 1, 2, 41.657227),
    Sketcher.Constraint("DistanceX", 3, 1, 3, 2, 7.178668),
    Sketcher.Constraint("DistanceY", 4, 1, 4, 2, 8.470834),
    Sketcher.Constraint("DistanceY", 6, 1, 6, 2, 3.106503),
    Sketcher.Constraint("DistanceX", 0, 2, -1, 1, 43.15381),
    Sketcher.Constraint("DistanceY", 4, 2, -1, 1, 1.258739),
])
sketch9.setExpression("Constraints[33]", "Params.sketch9_width")
pad8 = body8.newObject("PartDesign::Pad", "Pad007")
pad8.Profile = sketch9
pad8.setExpression("Length", "Params.pad8_length")
pad8.Reversed = True
body9 = doc.addObject("PartDesign::Body", "Body008")

sketch10 = body9.newObject("Sketcher::SketchObject", "Sketch009")
sketch10.AttachmentSupport = (doc.getObject("XY_Plane008"), [""])
sketch10.MapMode = "FlatFace"
sketch10.AttachmentOffset = App.Placement(App.Vector(0, 0, 7.679109), App.Rotation())
sketch10.addGeometry(Part.Circle(App.Vector(-40.1, 2.5, 0), App.Vector(0, 0, 1), 0.6), False)
sketch10.addConstraint([
    Sketcher.Constraint("Diameter", 0, Q("0.05 in")),
    Sketcher.Constraint("DistanceY", -1, 1, 0, 3, Q("0.1 in")),
    Sketcher.Constraint("DistanceX", 0, 3, -1, 1, 40.098027),
])
sketch10.setExpression("Constraints[0]", "Params.sketch10_diameter")
pad9 = body9.newObject("PartDesign::Pad", "Pad008")
pad9.Profile = sketch10
pad9.Type = "TwoLengths"
pad9.setExpression("Length", "Params.pad9_length")
pad9.setExpression("Length2", "Params.pad9_length2")
doc.recompute()

body10 = doc.addObject("PartDesign::Body", "Body009")
body10.BaseFeature = body9
boolean = body.newObject("PartDesign::Boolean", "Boolean")
boolean.Type = "Cut"
boolean.addObjects([body10])
doc.recompute()

body11 = doc.addObject("PartDesign::Body", "Body010")
body11.BaseFeature = body9
boolean2 = body2.newObject("PartDesign::Boolean", "Boolean001")
boolean2.Type = "Cut"
boolean2.addObjects([body11])
doc.recompute()

body12 = doc.addObject("PartDesign::Body", "Body011")
body12.BaseFeature = body9
boolean3 = body3.newObject("PartDesign::Boolean", "Boolean002")
boolean3.Type = "Cut"
boolean3.addObjects([body12])
doc.recompute()

body13 = doc.addObject("PartDesign::Body", "Body012")
body13.BaseFeature = body9
boolean4 = body4.newObject("PartDesign::Boolean", "Boolean003")
boolean4.Type = "Cut"
boolean4.addObjects([body13])
doc.recompute()

body14 = doc.addObject("PartDesign::Body", "Body013")
body14.BaseFeature = body9
boolean5 = body5.newObject("PartDesign::Boolean", "Boolean004")
boolean5.Type = "Cut"
boolean5.addObjects([body14])
doc.recompute()

body15 = doc.addObject("PartDesign::Body", "Body014")
body15.BaseFeature = body9
boolean6 = body6.newObject("PartDesign::Boolean", "Boolean005")
boolean6.Type = "Cut"
boolean6.addObjects([body15])
doc.recompute()

body16 = doc.addObject("PartDesign::Body", "Body015")
body16.BaseFeature = body9
boolean7 = body7.newObject("PartDesign::Boolean", "Boolean006")
boolean7.Type = "Cut"
boolean7.addObjects([body16])
doc.recompute()

boolean8 = body8.newObject("PartDesign::Boolean", "Boolean007")
boolean8.Type = "Cut"
boolean8.addObjects([body9])
body17 = doc.addObject("PartDesign::Body", "Body016")

sketch11 = body17.newObject("Sketcher::SketchObject", "Sketch010")
sketch11.AttachmentSupport = (doc.getObject("XY_Plane016"), [""])
sketch11.MapMode = "FlatFace"
sketch11.AttachmentOffset = App.Placement(App.Vector(0, 0, -12.269573), App.Rotation())
sketch11.addGeometry(Part.Circle(App.Vector(7, 2.5, 0), App.Vector(0, 0, 1), 0.6), False)
sketch11.addConstraint([
    Sketcher.Constraint("Diameter", 0, Q("0.05 in")),
    Sketcher.Constraint("DistanceY", -1, 1, 0, 3, Q("0.1 in")),
    Sketcher.Constraint("DistanceX", -1, 1, 0, 3, 6.952085),
])
sketch11.setExpression("Constraints[0]", "Params.sketch11_diameter")
pad10 = body17.newObject("PartDesign::Pad", "Pad009")
pad10.Profile = sketch11
pad10.Type = "TwoLengths"
pad10.setExpression("Length", "Params.pad10_length")
pad10.setExpression("Length2", "Params.pad10_length2")
pad10.Reversed = True
doc.recompute()

body18 = doc.addObject("PartDesign::Body", "Body017")
body18.BaseFeature = body17
boolean9 = body.newObject("PartDesign::Boolean", "Boolean008")
boolean9.Type = "Cut"
boolean9.addObjects([body18])
doc.recompute()

body19 = doc.addObject("PartDesign::Body", "Body018")
body19.BaseFeature = body17
boolean10 = body2.newObject("PartDesign::Boolean", "Boolean009")
boolean10.Type = "Cut"
boolean10.addObjects([body19])
doc.recompute()

body20 = doc.addObject("PartDesign::Body", "Body019")
body20.BaseFeature = body17
boolean11 = body3.newObject("PartDesign::Boolean", "Boolean010")
boolean11.Type = "Cut"
boolean11.addObjects([body20])
doc.recompute()

body21 = doc.addObject("PartDesign::Body", "Body020")
body21.BaseFeature = body17
boolean12 = body4.newObject("PartDesign::Boolean", "Boolean011")
boolean12.Type = "Cut"
boolean12.addObjects([body21])
doc.recompute()

body22 = doc.addObject("PartDesign::Body", "Body021")
body22.BaseFeature = body17
boolean13 = body5.newObject("PartDesign::Boolean", "Boolean012")
boolean13.Type = "Cut"
boolean13.addObjects([body22])
doc.recompute()

body23 = doc.addObject("PartDesign::Body", "Body022")
body23.BaseFeature = body17
boolean14 = body7.newObject("PartDesign::Boolean", "Boolean013")
boolean14.Type = "Cut"
boolean14.addObjects([body23])
doc.recompute()

boolean15 = body8.newObject("PartDesign::Boolean", "Boolean014")
boolean15.Type = "Cut"
boolean15.addObjects([body17])
body24 = doc.addObject("PartDesign::Body", "Body023")

sketch12 = body24.newObject("Sketcher::SketchObject", "Sketch011")
sketch12.Placement = App.Placement(App.Vector(-0.000569, 0, 2.029189), App.Rotation(App.Vector(-0.999999961, 0, -0.000280493), App.Vector(0, 1.000000001, 0), App.Vector(0.000280493, 0, -0.999999961), "ZXY"))
sketch12.addGeometry(Part.Circle(App.Vector(-36.8, 2.5, 0), App.Vector(0, 0, 1), 0.6), False)
sketch12.addConstraint([
    Sketcher.Constraint("Diameter", 0, Q("0.05 in")),
    Sketcher.Constraint("DistanceY", -1, 1, 0, 3, Q("0.1 in")),
    Sketcher.Constraint("DistanceX", 0, 3, -1, 1, 36.793284),
])
sketch12.setExpression("Constraints[0]", "Params.sketch12_diameter")
pad11 = body24.newObject("PartDesign::Pad", "Pad010")
pad11.Profile = sketch12
pad11.Type = "TwoLengths"
pad11.setExpression("Length", "Params.pad11_length")
pad11.setExpression("Length2", "Params.pad11_length2")
doc.recompute()

body25 = doc.addObject("PartDesign::Body", "Body024")
body25.BaseFeature = body24
boolean16 = body.newObject("PartDesign::Boolean", "Boolean015")
boolean16.Type = "Cut"
boolean16.addObjects([body25])
doc.recompute()

sketch13 = body.newObject("Sketcher::SketchObject", "Sketch012")
sketch13.AttachmentSupport = (doc.getObject("XZ_Plane"), [""])
sketch13.MapMode = "FlatFace"
sketch13.addGeometry([
    Part.Circle(App.Vector(-32.3, 23, 0), App.Vector(0, 0, 1), 1.3),
    Part.Circle(App.Vector(35.9, 23, 0), App.Vector(0, 0, 1), 1.3),
    Part.Circle(App.Vector(-32.3, -22.7, 0), App.Vector(0, 0, 1), 1.3),
    Part.Circle(App.Vector(35.9, -22.7, 0), App.Vector(0, 0, 1), 1.3),
], False)
sketch13.addConstraint([
    Sketcher.Constraint("Equal", 0, 1),
    Sketcher.Constraint("Equal", 1, 2),
    Sketcher.Constraint("Equal", 2, 3),
    Sketcher.Constraint("Horizontal", 0, 3, 1, 3),
    Sketcher.Constraint("Horizontal", 2, 3, 3, 3),
    Sketcher.Constraint("Vertical", 0, 3, 2, 3),
    Sketcher.Constraint("Vertical", 1, 3, 3, 3),
    Sketcher.Constraint("Diameter", 0, Q("0.1 in")),
    Sketcher.Constraint("DistanceY", 2, 3, 0, 3, Q("1.8 in")),
    Sketcher.Constraint("DistanceY", -1, 1, 0, 3, Q("0.905 in")),
    Sketcher.Constraint("DistanceX", -1, 1, 1, 3, 35.933919),
    Sketcher.Constraint("DistanceX", 0, 3, -1, 1, 32.250797),
])
sketch13.setExpression("Constraints[7]", "Params.sketch13_diameter")
pad12 = body.newObject("PartDesign::Pad", "Pad011")
pad12.Profile = sketch13
pad12.setExpression("Length", "Params.pad12_length")
doc.recompute()

body26 = doc.addObject("PartDesign::Body", "Body025")
body26.BaseFeature = body24
boolean17 = body3.newObject("PartDesign::Boolean", "Boolean016")
boolean17.Type = "Cut"
boolean17.addObjects([body26])
doc.recompute()

body27 = doc.addObject("PartDesign::Body", "Body026")
body27.BaseFeature = body24
boolean18 = body5.newObject("PartDesign::Boolean", "Boolean017")
boolean18.Type = "Cut"
boolean18.addObjects([body27])
doc.recompute()

boolean19 = body7.newObject("PartDesign::Boolean", "Boolean018")
boolean19.Type = "Cut"
boolean19.addObjects([body24])

doc.recompute()
